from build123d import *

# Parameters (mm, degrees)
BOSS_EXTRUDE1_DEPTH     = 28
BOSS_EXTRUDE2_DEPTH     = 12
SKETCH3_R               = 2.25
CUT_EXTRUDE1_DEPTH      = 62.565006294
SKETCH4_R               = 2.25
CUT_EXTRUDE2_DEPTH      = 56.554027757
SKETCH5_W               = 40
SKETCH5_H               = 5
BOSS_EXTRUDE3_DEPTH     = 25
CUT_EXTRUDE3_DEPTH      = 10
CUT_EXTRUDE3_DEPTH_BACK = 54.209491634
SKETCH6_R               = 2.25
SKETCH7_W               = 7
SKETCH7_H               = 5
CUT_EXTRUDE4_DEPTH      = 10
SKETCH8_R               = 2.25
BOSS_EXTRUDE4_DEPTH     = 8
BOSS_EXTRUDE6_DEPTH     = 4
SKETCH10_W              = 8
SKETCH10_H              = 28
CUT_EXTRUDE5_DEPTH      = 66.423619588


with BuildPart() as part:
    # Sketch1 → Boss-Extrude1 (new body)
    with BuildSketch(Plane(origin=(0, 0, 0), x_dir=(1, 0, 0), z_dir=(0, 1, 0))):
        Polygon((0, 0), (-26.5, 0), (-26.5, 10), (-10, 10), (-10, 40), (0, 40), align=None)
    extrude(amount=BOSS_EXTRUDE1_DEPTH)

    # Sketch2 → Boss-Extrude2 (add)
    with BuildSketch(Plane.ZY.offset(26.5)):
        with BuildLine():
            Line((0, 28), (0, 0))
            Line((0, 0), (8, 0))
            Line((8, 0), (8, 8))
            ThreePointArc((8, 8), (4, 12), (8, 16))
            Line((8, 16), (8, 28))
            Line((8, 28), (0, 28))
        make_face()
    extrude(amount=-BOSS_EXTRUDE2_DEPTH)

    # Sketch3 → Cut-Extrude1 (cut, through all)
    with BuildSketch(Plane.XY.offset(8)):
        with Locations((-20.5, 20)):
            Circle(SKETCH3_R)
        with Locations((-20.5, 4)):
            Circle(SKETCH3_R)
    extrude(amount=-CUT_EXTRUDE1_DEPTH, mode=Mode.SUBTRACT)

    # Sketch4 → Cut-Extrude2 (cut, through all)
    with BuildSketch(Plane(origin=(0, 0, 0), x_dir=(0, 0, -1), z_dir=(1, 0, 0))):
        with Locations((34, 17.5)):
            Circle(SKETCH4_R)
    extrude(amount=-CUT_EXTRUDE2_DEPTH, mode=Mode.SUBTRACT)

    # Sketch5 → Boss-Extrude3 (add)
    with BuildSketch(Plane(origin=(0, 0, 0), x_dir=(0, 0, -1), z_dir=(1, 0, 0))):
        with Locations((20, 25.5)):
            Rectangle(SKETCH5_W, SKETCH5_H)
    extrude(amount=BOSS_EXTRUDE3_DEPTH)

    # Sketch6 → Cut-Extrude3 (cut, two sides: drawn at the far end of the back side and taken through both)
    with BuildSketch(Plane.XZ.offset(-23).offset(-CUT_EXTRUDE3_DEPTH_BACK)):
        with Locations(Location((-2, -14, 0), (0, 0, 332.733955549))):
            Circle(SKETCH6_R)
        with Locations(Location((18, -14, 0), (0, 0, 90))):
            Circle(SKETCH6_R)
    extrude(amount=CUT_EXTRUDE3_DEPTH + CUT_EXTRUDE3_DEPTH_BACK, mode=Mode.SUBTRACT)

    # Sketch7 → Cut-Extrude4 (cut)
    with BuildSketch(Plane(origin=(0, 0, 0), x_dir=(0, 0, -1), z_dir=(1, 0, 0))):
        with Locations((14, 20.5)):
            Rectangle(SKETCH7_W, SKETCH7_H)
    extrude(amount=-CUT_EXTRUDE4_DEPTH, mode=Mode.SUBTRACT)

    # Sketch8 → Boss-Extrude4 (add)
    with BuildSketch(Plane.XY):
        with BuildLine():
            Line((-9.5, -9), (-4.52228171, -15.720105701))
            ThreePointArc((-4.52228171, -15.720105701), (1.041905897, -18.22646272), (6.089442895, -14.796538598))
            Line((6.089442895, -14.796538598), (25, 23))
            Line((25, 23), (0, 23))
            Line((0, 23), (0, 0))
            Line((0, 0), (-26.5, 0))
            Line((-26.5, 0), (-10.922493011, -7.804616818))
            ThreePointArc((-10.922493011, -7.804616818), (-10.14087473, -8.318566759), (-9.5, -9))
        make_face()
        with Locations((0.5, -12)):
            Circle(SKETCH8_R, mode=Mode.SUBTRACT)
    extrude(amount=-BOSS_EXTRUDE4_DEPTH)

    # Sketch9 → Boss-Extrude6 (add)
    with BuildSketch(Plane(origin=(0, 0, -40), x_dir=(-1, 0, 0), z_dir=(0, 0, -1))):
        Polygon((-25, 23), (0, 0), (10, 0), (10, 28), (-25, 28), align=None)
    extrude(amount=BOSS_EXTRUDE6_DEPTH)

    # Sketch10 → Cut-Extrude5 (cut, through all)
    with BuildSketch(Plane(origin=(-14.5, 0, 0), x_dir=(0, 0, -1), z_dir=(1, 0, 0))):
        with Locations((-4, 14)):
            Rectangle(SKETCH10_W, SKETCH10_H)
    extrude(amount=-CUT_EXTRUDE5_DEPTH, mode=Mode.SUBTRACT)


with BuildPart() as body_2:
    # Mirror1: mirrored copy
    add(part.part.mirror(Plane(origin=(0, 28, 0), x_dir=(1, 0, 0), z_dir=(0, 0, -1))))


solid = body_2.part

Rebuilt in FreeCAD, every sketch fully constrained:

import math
import FreeCAD as App
import Part
import Sketcher
Q = App.Units.Quantity


def add_polygon(sketch, points):
    """Adds a closed chain of lines whose ends are joined by coincident constraints."""
    first, n = sketch.GeometryCount, len(points)
    for a, b in zip(points, points[1:] + points[:1]):
        sketch.addGeometry(Part.LineSegment(App.Vector(*a, 0), App.Vector(*b, 0)), False)
    for i in range(n):
        sketch.addConstraint(Sketcher.Constraint("Coincident", first + i, 2, first + (i + 1) % n, 1))

doc = App.newDocument("Part")
params = doc.addObject("Spreadsheet::Sheet", "Params")
for row, (alias, value) in enumerate([
    ("sketch1_width", "10 mm"),
    ("sketch1_height", "40 mm"),
    ("sketch1_width2", "26.5 mm"),
    ("pad1_length", "28 mm"),
    ("sketch2_radius", "4 mm"),
    ("sketch2_width", "28 mm"),
    ("sketch2_width2", "8 mm"),
    ("pad2_length", "12 mm"),
    ("sketch3_diameter", "4.5 mm"),
    ("sketch4_diameter", "4.5 mm"),
    ("sketch5_width", "5 mm"),
    ("sketch5_height", "40 mm"),
    ("pad3_length", "25 mm"),
    ("sketch6_diameter", "4.5 mm"),
    ("pocket3_length", "10 mm"),
    ("pocket3_length2", "54.209492 mm"),
    ("sketch7_width", "5 mm"),
    ("sketch7_height", "7 mm"),
    ("pocket4_length", "10 mm"),
    ("sketch8_radius", "4 mm"),
    ("sketch8_diameter", "4.5 mm"),
    ("sketch8_width", "25 mm"),
    ("sketch8_height", "23 mm"),
    ("sketch8_radius2", "6.25 mm"),
    ("pad4_length", "8 mm"),
    ("sketch9_width", "10 mm"),
    ("sketch9_width2", "35 mm"),
    ("sketch9_height", "28 mm"),
    ("sketch9_height2", "5 mm"),
    ("pad5_length", "4 mm"),
    ("sketch10_width", "28 mm"),
    ("sketch10_height", "8 mm"),
], start=1):
    params.set(f"A{row}", alias)
    params.set(f"B{row}", "=" + value)
    params.setAlias(f"B{row}", alias)

body = doc.addObject("PartDesign::Body", "Body")

# Sketch on XZ plane
sketch1 = doc.addObject("Sketcher::SketchObject", "Sketch")
body.addObject(sketch1)
sketch1.AttachmentSupport = (doc.XZ_Plane, [""])
sketch1.MapMode = "FlatFace"
add_polygon(sketch1, [(-26, 0), (0, 0), (0, -40), (-10, -40), (-10, -10), (-26, -10)])  # lines 0-5
sketch1.addConstraint([
    Sketcher.Constraint("Horizontal", 0),
    Sketcher.Constraint("Vertical", 1),
    Sketcher.Constraint("Horizontal", 2),
    Sketcher.Constraint("Vertical", 3),
    Sketcher.Constraint("Horizontal", 4),
    Sketcher.Constraint("Vertical", 5),
    Sketcher.Constraint("Coincident", 0, 2, -1, 1),
    Sketcher.Constraint("Equal", 2, 5),
    Sketcher.Constraint("DistanceX", 2, 2, 2, 1, Q("10 mm")),
    Sketcher.Constraint("DistanceY", 1, 2, 1, 1, Q("40 mm")),
    Sketcher.Constraint("DistanceX", 0, 1, 0, 2, Q("26.5 mm")),
])
sketch1.setExpression("Constraints[14]", "Params.sketch1_width")
sketch1.setExpression("Constraints[15]", "Params.sketch1_height")
sketch1.setExpression("Constraints[16]", "Params.sketch1_width2")
pad1 = doc.addObject("PartDesign::Pad", "Pad")
body.addObject(pad1)
pad1.Profile = sketch1
pad1.setExpression("Length", "Params.pad1_length")
pad1.Reversed = True

# Sketch on YZ plane
sketch2 = doc.addObject("Sketcher::SketchObject", "Sketch001")
body.addObject(sketch2)
sketch2.AttachmentSupport = (doc.YZ_Plane, [""])
sketch2.MapMode = "FlatFace"
sketch2.AttachmentOffset = App.Placement(App.Vector(0, 0, -26.5), App.Rotation())
sketch2.addGeometry([
    Part.LineSegment(App.Vector(28, 0, 0), App.Vector(0, 0, 0)),  # 0
    Part.LineSegment(App.Vector(0, 0, 0), App.Vector(0, 8, 0)),  # 1
    Part.LineSegment(App.Vector(0, 8, 0), App.Vector(8, 8, 0)),  # 2
    Part.ArcOfCircle(Part.Circle(App.Vector(12, 8, 0), App.Vector(0, 0, 1), 4), math.radians(180), math.radians(360)),  # 3
    Part.LineSegment(App.Vector(16, 8, 0), App.Vector(28, 8, 0)),  # 4
    Part.LineSegment(App.Vector(28, 8, 0), App.Vector(28, 0, 0)),  # 5
], False)
sketch2.addConstraint([
    Sketcher.Constraint("Coincident", 0, 2, 1, 1),
    Sketcher.Constraint("Coincident", 1, 2, 2, 1),
    Sketcher.Constraint("Coincident", 2, 2, 3, 1),
    Sketcher.Constraint("Coincident", 3, 2, 4, 1),
    Sketcher.Constraint("Coincident", 4, 2, 5, 1),
    Sketcher.Constraint("Coincident", 5, 2, 0, 1),
    Sketcher.Constraint("Horizontal", 0),
    Sketcher.Constraint("Vertical", 1),
    Sketcher.Constraint("Horizontal", 2),
    Sketcher.Constraint("Horizontal", 4),
    Sketcher.Constraint("Vertical", 5),
    Sketcher.Constraint("Coincident", 0, 2, -1, 1),
    Sketcher.Constraint("Horizontal", 3, 3, 1, 2),
    Sketcher.Constraint("Horizontal", 2, 2, 3, 2),
    Sketcher.Constraint("Equal", 2, 1),
    Sketcher.Constraint("Radius", 3, Q("4 mm")),
    Sketcher.Constraint("DistanceX", 0, 2, 0, 1, Q("28 mm")),
    Sketcher.Constraint("DistanceX", 2, 1, 2, 2, Q("8 mm")),
])
sketch2.setExpression("Constraints[15]", "Params.sketch2_radius")
sketch2.setExpression("Constraints[16]", "Params.sketch2_width")
sketch2.setExpression("Constraints[17]", "Params.sketch2_width2")
pad2 = doc.addObject("PartDesign::Pad", "Pad001")
body.addObject(pad2)
pad2.Profile = sketch2
pad2.setExpression("Length", "Params.pad2_length")

# Sketch on XY plane
sketch3 = doc.addObject("Sketcher::SketchObject", "Sketch002")
body.addObject(sketch3)
sketch3.AttachmentSupport = (doc.XY_Plane, [""])
sketch3.MapMode = "FlatFace"
sketch3.AttachmentOffset = App.Placement(App.Vector(0, 0, 8), App.Rotation())
sketch3.addGeometry([
    Part.Circle(App.Vector(-20.5, 20, 0), App.Vector(0, 0, 1), 2.2),
    Part.Circle(App.Vector(-20.5, 4, 0), App.Vector(0, 0, 1), 2.2),
], False)
sketch3.addConstraint([
    Sketcher.Constraint("Equal", 0, 1),
    Sketcher.Constraint("Vertical", 0, 3, 1, 3),
    Sketcher.Constraint("Diameter", 0, Q("4.5 mm")),
    Sketcher.Constraint("DistanceY", -1, 1, 0, 3, Q("20 mm")),
    Sketcher.Constraint("DistanceY", -1, 1, 1, 3, Q("4 mm")),
    Sketcher.Constraint("DistanceX", 0, 3, -1, 1, Q("20.5 mm")),
])
sketch3.setExpression("Constraints[2]", "Params.sketch3_diameter")
pocket1 = doc.addObject("PartDesign::Pocket", "Pocket")
body.addObject(pocket1)
pocket1.Profile = sketch3
pocket1.Type = "ThroughAll"

# Sketch on YZ plane
sketch4 = doc.addObject("Sketcher::SketchObject", "Sketch003")
body.addObject(sketch4)
sketch4.AttachmentSupport = (doc.YZ_Plane, [""])
sketch4.MapMode = "FlatFace"
sketch4.addGeometry(Part.Circle(App.Vector(17.5, -34, 0), App.Vector(0, 0, 1), 2.2), False)
sketch4.addConstraint([
    Sketcher.Constraint("Diameter", 0, Q("4.5 mm")),
    Sketcher.Constraint("DistanceY", 0, 3, -1, 1, Q("34 mm")),
    Sketcher.Constraint("DistanceX", -1, 1, 0, 3, Q("17.5 mm")),
])
sketch4.setExpression("Constraints[0]", "Params.sketch4_diameter")
pocket2 = doc.addObject("PartDesign::Pocket", "Pocket001")
body.addObject(pocket2)
pocket2.Profile = sketch4
pocket2.Type = "ThroughAll"

# Sketch on YZ plane
sketch5 = doc.addObject("Sketcher::SketchObject", "Sketch004")
body.addObject(sketch5)
sketch5.AttachmentSupport = (doc.YZ_Plane, [""])
sketch5.MapMode = "FlatFace"
add_polygon(sketch5, [(28, 0), (23, 0), (23, -40), (28, -40)])  # lines 0-3
sketch5.addConstraint([
    Sketcher.Constraint("Horizontal", 0),
    Sketcher.Constraint("Vertical", 1),
    Sketcher.Constraint("Horizontal", 2),
    Sketcher.Constraint("Vertical", 3),
    Sketcher.Constraint("PointOnObject", 0, 2, -1),
    Sketcher.Constraint("DistanceX", 0, 2, 0, 1, Q("5 mm")),
    Sketcher.Constraint("DistanceY", 1, 2, 1, 1, Q("40 mm")),
    Sketcher.Constraint("DistanceX", -1, 1, 0, 2, Q("23 mm")),
])
sketch5.setExpression("Constraints[9]", "Params.sketch5_width")
sketch5.setExpression("Constraints[10]", "Params.sketch5_height")
pad3 = doc.addObject("PartDesign::Pad", "Pad002")
body.addObject(pad3)
pad3.Profile = sketch5
pad3.setExpression("Length", "Params.pad3_length")

# Sketch on XZ plane
sketch6 = doc.addObject("Sketcher::SketchObject", "Sketch005")
body.addObject(sketch6)
sketch6.AttachmentSupport = (doc.XZ_Plane, [""])
sketch6.MapMode = "FlatFace"
sketch6.AttachmentOffset = App.Placement(App.Vector(0, 0, -23), App.Rotation())
sketch6.addGeometry([
    Part.Circle(App.Vector(-2, -14, 0), App.Vector(0, 0, 1), 2.2),
    Part.Circle(App.Vector(18, -14, 0), App.Vector(0, 0, 1), 2.2),
], False)
sketch6.addConstraint([
    Sketcher.Constraint("Equal", 0, 1),
    Sketcher.Constraint("Horizontal", 0, 3, 1, 3),
    Sketcher.Constraint("Diameter", 0, Q("4.5 mm")),
    Sketcher.Constraint("DistanceX", 0, 3, -1, 1, Q("2 mm")),
    Sketcher.Constraint("DistanceY", 0, 3, -1, 1, Q("14 mm")),
    Sketcher.Constraint("DistanceX", -1, 1, 1, 3, Q("18 mm")),
])
sketch6.setExpression("Constraints[2]", "Params.sketch6_diameter")
pocket3 = doc.addObject("PartDesign::Pocket", "Pocket002")
body.addObject(pocket3)
pocket3.Profile = sketch6
pocket3.Type = "TwoLengths"
pocket3.setExpression("Length", "Params.pocket3_length")
pocket3.setExpression("Length2", "Params.pocket3_length2")
pocket3.Reversed = True

# Sketch on YZ plane
sketch7 = doc.addObject("Sketcher::SketchObject", "Sketch006")
body.addObject(sketch7)
sketch7.AttachmentSupport = (doc.YZ_Plane, [""])
sketch7.MapMode = "FlatFace"
add_polygon(sketch7, [(23, -10), (18, -10), (18, -18), (23, -18)])  # lines 0-3
sketch7.addConstraint([
    Sketcher.Constraint("Horizontal", 0),
    Sketcher.Constraint("Vertical", 1),
    Sketcher.Constraint("Horizontal", 2),
    Sketcher.Constraint("Vertical", 3),
    Sketcher.Constraint("DistanceX", 0, 2, 0, 1, Q("5 mm")),
    Sketcher.Constraint("DistanceY", 1, 2, 1, 1, Q("7 mm")),
    Sketcher.Constraint("DistanceX", -1, 1, 0, 2, Q("18 mm")),
    Sketcher.Constraint("DistanceY", 0, 2, -1, 1, Q("10.5 mm")),
])
sketch7.setExpression("Constraints[8]", "Params.sketch7_width")
sketch7.setExpression("Constraints[9]", "Params.sketch7_height")
pocket4 = doc.addObject("PartDesign::Pocket", "Pocket003")
body.addObject(pocket4)
pocket4.Profile = sketch7
pocket4.setExpression("Length", "Params.pocket4_length")

# Sketch on XY plane
sketch8 = doc.addObject("Sketcher::SketchObject", "Sketch007")
body.addObject(sketch8)
sketch8.AttachmentSupport = (doc.XY_Plane, [""])
sketch8.MapMode = "FlatFace"
sketch8.addGeometry([
    Part.LineSegment(App.Vector(-9.5, -9, 0), App.Vector(-4.5, -15.7, 0)),  # 0
    Part.ArcOfCircle(Part.Circle(App.Vector(0.5, -12, 0), App.Vector(0, 0, 1), 6.2), math.radians(-143), math.radians(-27)),  # 1
    Part.LineSegment(App.Vector(6.1, -14.8, 0), App.Vector(25, 23, 0)),  # 2
    Part.LineSegment(App.Vector(25, 23, 0), App.Vector(0, 23, 0)),  # 3
    Part.LineSegment(App.Vector(0, 23, 0), App.Vector(0, 0, 0)),  # 4
    Part.LineSegment(App.Vector(0, 0, 0), App.Vector(-26.5, 0, 0)),  # 5
    Part.LineSegment(App.Vector(-26.5, 0, 0), App.Vector(-10.9, -7.8, 0)),  # 6
    Part.ArcOfCircle(Part.Circle(App.Vector(-12.7, -11.4, 0), App.Vector(0, 0, 1), 4), math.radians(37), math.radians(63)),  # 7
    Part.Circle(App.Vector(0.5, -12, 0), App.Vector(0, 0, 1), 2.2),  # 8
], False)
sketch8.addConstraint([
    Sketcher.Constraint("Tangent", 0, 2, 1, 1),
    Sketcher.Constraint("Tangent", 1, 2, 2, 1),
    Sketcher.Constraint("Coincident", 2, 2, 3, 1),
    Sketcher.Constraint("Coincident", 3, 2, 4, 1),
    Sketcher.Constraint("Coincident", 4, 2, 5, 1),
    Sketcher.Constraint("Coincident", 5, 2, 6, 1),
    Sketcher.Constraint("Tangent", 6, 2, 7, 2),
    Sketcher.Constraint("Tangent", 7, 1, 0, 1),
    Sketcher.Constraint("Horizontal", 3),
    Sketcher.Constraint("Vertical", 4),
    Sketcher.Constraint("Horizontal", 5),
    Sketcher.Constraint("Coincident", 4, 2, -1, 1),
    Sketcher.Constraint("Coincident", 8, 3, 1, 3),
    Sketcher.Constraint("Radius", 7, Q("4 mm")),
    Sketcher.Constraint("Diameter", 8, Q("4.5 mm")),
    Sketcher.Constraint("DistanceX", 3, 2, 3, 1, Q("25 mm")),
    Sketcher.Constraint("DistanceY", 4, 2, 4, 1, Q("23 mm")),
    Sketcher.Constraint("Radius", 1, Q("6.25 mm")),
    Sketcher.Constraint("DistanceX", 5, 2, 5, 1, Q("26.5 mm")),
    Sketcher.Constraint("DistanceY", 1, 3, -1, 1, Q("12 mm")),
    Sketcher.Constraint("DistanceY", 7, 1, -1, 1, Q("9 mm")),
    Sketcher.Constraint("DistanceX", 5, 2, 1, 3, Q("27 mm")),
    Sketcher.Constraint("DistanceX", 7, 1, 1, 3, Q("10 mm")),
])
sketch8.setExpression("Constraints[13]", "Params.sketch8_radius")
sketch8.setExpression("Constraints[14]", "Params.sketch8_diameter")
sketch8.setExpression("Constraints[15]", "Params.sketch8_width")
sketch8.setExpression("Constraints[16]", "Params.sketch8_height")
sketch8.setExpression("Constraints[17]", "Params.sketch8_radius2")
pad4 = doc.addObject("PartDesign::Pad", "Pad003")
body.addObject(pad4)
pad4.Profile = sketch8
pad4.setExpression("Length", "Params.pad4_length")
pad4.Reversed = True

# Sketch on XY plane
sketch9 = doc.addObject("Sketcher::SketchObject", "Sketch008")
body.addObject(sketch9)
sketch9.AttachmentSupport = (doc.XY_Plane, [""])
sketch9.MapMode = "FlatFace"
sketch9.AttachmentOffset = App.Placement(App.Vector(0, 0, -40), App.Rotation())
add_polygon(sketch9, [(25, 23), (0, 0), (-10, 0), (-10, 28), (25, 28)])  # lines 0-4
sketch9.addConstraint([
    Sketcher.Constraint("Horizontal", 1),
    Sketcher.Constraint("Vertical", 2),
    Sketcher.Constraint("Horizontal", 3),
    Sketcher.Constraint("Vertical", 4),
    Sketcher.Constraint("Coincident", 0, 2, -1, 1),
    Sketcher.Constraint("DistanceX", 1, 2, 1, 1, Q("10 mm")),
    Sketcher.Constraint("DistanceX", 3, 1, 3, 2, Q("35 mm")),
    Sketcher.Constraint("DistanceY", 2, 1, 2, 2, Q("28 mm")),
    Sketcher.Constraint("DistanceY", 4, 2, 4, 1, Q("5 mm")),
])
sketch9.setExpression("Constraints[10]", "Params.sketch9_width")
sketch9.setExpression("Constraints[11]", "Params.sketch9_width2")
sketch9.setExpression("Constraints[12]", "Params.sketch9_height")
sketch9.setExpression("Constraints[13]", "Params.sketch9_height2")
pad5 = doc.addObject("PartDesign::Pad", "Pad004")
body.addObject(pad5)
pad5.Profile = sketch9
pad5.setExpression("Length", "Params.pad5_length")
pad5.Reversed = True

# Sketch on YZ plane
sketch10 = doc.addObject("Sketcher::SketchObject", "Sketch009")
body.addObject(sketch10)
sketch10.AttachmentSupport = (doc.YZ_Plane, [""])
sketch10.MapMode = "FlatFace"
sketch10.AttachmentOffset = App.Placement(App.Vector(0, 0, -14.5), App.Rotation())
add_polygon(sketch10, [(28, 8), (0, 8), (0, 0), (28, 0)])  # lines 0-3
sketch10.addConstraint([
    Sketcher.Constraint("Horizontal", 0),
    Sketcher.Constraint("Vertical", 1),
    Sketcher.Constraint("Horizontal", 2),
    Sketcher.Constraint("Vertical", 3),
    Sketcher.Constraint("Coincident", 1, 2, -1, 1),
    Sketcher.Constraint("DistanceX", 0, 2, 0, 1, Q("28 mm")),
    Sketcher.Constraint("DistanceY", 1, 2, 1, 1, Q("8 mm")),
])
sketch10.setExpression("Constraints[9]", "Params.sketch10_width")
sketch10.setExpression("Constraints[10]", "Params.sketch10_height")
pocket5 = doc.addObject("PartDesign::Pocket", "Pocket004")
body.addObject(pocket5)
pocket5.Profile = sketch10
pocket5.Type = "ThroughAll"
body2 = doc.addObject("PartDesign::Body", "Body001")
doc.recompute()

mirroring = doc.addObject("Part::Mirroring", "Mirroring")
mirroring.Source = body
mirroring.Base = App.Vector(0, 28, 0)
mirroring.Normal = App.Vector(0, 0, -1)
body2.BaseFeature = mirroring
doc.recompute()
body.Visibility = False
mirroring.Visibility = False

doc.recompute()
